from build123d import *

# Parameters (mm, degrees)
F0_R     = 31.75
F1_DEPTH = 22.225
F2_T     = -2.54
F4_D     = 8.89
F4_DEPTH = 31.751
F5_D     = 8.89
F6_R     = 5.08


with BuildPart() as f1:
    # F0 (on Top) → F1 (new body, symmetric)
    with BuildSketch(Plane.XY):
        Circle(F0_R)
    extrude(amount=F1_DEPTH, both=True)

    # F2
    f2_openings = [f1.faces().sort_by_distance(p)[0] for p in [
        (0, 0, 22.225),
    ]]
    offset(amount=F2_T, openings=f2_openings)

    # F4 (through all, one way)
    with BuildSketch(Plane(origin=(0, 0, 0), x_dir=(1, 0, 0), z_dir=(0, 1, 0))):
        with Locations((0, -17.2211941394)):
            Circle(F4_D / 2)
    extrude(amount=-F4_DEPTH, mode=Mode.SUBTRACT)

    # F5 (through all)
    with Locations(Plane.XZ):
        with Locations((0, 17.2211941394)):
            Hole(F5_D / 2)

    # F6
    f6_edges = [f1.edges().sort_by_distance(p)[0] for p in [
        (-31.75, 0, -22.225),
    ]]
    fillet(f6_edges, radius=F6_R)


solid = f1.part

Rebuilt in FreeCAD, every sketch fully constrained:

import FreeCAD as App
import Part
import Sketcher

V = App.Vector
Q = App.Units.Quantity


def edges_at(feature, points):
    """Names of the edges that pass closest to the given points."""
    edges = feature.Shape.Edges
    near = lambda p: min(range(len(edges)), key=lambda i: edges[i].distToShape(Part.Vertex(*p))[0])
    return sorted({f"Edge{near(p) + 1}" for p in points})


def faces_at(feature, points):
    """Names of the faces that lie closest to the given points."""
    faces = feature.Shape.Faces
    near = lambda p: min(range(len(faces)), key=lambda i: faces[i].distToShape(Part.Vertex(*p))[0])
    return sorted({f"Face{near(p) + 1}" for p in points})

doc = App.newDocument("Part")
body = doc.addObject("PartDesign::Body", "Body")

# Sketch on XY plane
sketch1 = doc.addObject("Sketcher::SketchObject", "Sketch")
body.addObject(sketch1)
sketch1.AttachmentSupport = (doc.XY_Plane, [""])
sketch1.MapMode = "FlatFace"
sketch1.addGeometry(Part.Circle(V(0, 0, 0), V(0, 0, 1), 32), False)
sketch1.addConstraint([
    Sketcher.Constraint("Coincident", 0, 3, -1, 1),
    Sketcher.Constraint("Diameter", 0, Q("2.5 in")),
])
pad1 = doc.addObject("PartDesign::Pad", "Pad")
body.addObject(pad1)
pad1.Profile = sketch1
pad1.Length = Q("1.75 in")
pad1.Midplane = True
doc.recompute()

thickness = doc.addObject("PartDesign::Thickness", "Thickness")
body.addObject(thickness)
thickness.Base = (pad1, faces_at(pad1, [(0, 0, 22.225)]))
thickness.Value = Q("0.1 in")
thickness.Reversed = True
thickness.Join = "Arc"

# Sketch on XZ plane
sketch2 = doc.addObject("Sketcher::SketchObject", "Sketch001")
body.addObject(sketch2)
sketch2.AttachmentSupport = (doc.XZ_Plane, [""])
sketch2.MapMode = "FlatFace"
sketch2.addGeometry(Part.Circle(V(0, 17.2, 0), V(0, 0, 1), 4.4), False)
sketch2.addConstraint([
    Sketcher.Constraint("PointOnObject", 0, 3, -2),
    Sketcher.Constraint("Diameter", 0, Q("0.35 in")),
    Sketcher.Constraint("DistanceY", -1, 1, 0, 3, 17.221194),
])
pocket1 = doc.addObject("PartDesign::Pocket", "Pocket")
body.addObject(pocket1)
pocket1.Profile = sketch2
pocket1.Type = "ThroughAll"
pocket1.Reversed = True

# Sketch on XZ plane
sketch3 = doc.addObject("Sketcher::SketchObject", "Sketch002")
body.addObject(sketch3)
sketch3.AttachmentSupport = (doc.XZ_Plane, [""])
sketch3.MapMode = "FlatFace"
sketch3.addGeometry(Part.Circle(V(0, 17.2, 0), V(0, 0, 1), 4.4), False)
sketch3.addConstraint([
    Sketcher.Constraint("PointOnObject", 0, 3, -2),
    Sketcher.Constraint("Diameter", 0, Q("0.35 in")),
    Sketcher.Constraint("DistanceY", -1, 1, 0, 3, 17.221194),
])
doc.recompute()
hole = doc.addObject("PartDesign::Hole", "Hole")
body.addObject(hole)
hole.Profile = sketch3
hole.ThreadType = "None"
hole.Diameter = Q("0.35 in")
hole.DepthType = "ThroughAll"
doc.recompute()

fillet = doc.addObject("PartDesign::Fillet", "Fillet")
body.addObject(fillet)
fillet.Base = (hole, edges_at(hole, [(-31.75, 0, -22.225)]))
fillet.Radius = Q("0.2 in")

doc.recompute()
